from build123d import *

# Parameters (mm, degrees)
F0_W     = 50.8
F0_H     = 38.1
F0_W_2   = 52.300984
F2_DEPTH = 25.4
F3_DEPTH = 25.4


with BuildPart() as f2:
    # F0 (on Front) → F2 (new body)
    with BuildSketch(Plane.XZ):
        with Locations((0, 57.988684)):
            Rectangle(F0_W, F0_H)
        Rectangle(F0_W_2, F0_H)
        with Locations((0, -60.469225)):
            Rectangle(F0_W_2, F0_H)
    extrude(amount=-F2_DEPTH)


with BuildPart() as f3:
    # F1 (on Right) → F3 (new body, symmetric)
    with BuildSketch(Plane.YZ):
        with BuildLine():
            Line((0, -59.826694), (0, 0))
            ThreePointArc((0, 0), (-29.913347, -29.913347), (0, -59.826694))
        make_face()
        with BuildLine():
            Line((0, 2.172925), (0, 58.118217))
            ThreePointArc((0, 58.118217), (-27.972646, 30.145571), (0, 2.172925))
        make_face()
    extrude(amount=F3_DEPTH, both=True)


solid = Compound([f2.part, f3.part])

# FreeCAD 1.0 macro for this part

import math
import FreeCAD as App
import Part
import Sketcher

V = App.Vector
Q = App.Units.Quantity

doc = App.newDocument("Part")
body = doc.addObject("PartDesign::Body", "Body")
body.AllowCompound = True

# Sketch on XZ plane
sketch1 = doc.addObject("Sketcher::SketchObject", "Sketch")
body.addObject(sketch1)
sketch1.AttachmentSupport = (doc.XZ_Plane, [""])
sketch1.MapMode = "FlatFace"
sketch1.addGeometry([
    Part.LineSegment(V(-25, 77, 0), V(-25, 39, 0)),  # 0
    Part.LineSegment(V(-25, 39, 0), V(25, 39, 0)),  # 1
    Part.LineSegment(V(25, 39, 0), V(25, 77, 0)),  # 2
    Part.LineSegment(V(25, 77, 0), V(-25, 77, 0)),  # 3
    Part.LineSegment(V(-26, 19, 0), V(-26, -19, 0)),  # 4
    Part.LineSegment(V(-26, -19, 0), V(26, -19, 0)),  # 5
    Part.LineSegment(V(26, -19, 0), V(26, 19, 0)),  # 6
    Part.LineSegment(V(26, 19, 0), V(-26, 19, 0)),  # 7
    Part.LineSegment(V(-26, -41, 0), V(-26, -80, 0)),  # 8
    Part.LineSegment(V(-26, -80, 0), V(26, -80, 0)),  # 9
    Part.LineSegment(V(26, -80, 0), V(26, -41, 0)),  # 10
    Part.LineSegment(V(26, -41, 0), V(-26, -41, 0)),  # 11
], False)
sketch1.addConstraint([
    Sketcher.Constraint("Coincident", 0, 2, 1, 1),
    Sketcher.Constraint("Coincident", 1, 2, 2, 1),
    Sketcher.Constraint("Coincident", 2, 2, 3, 1),
    Sketcher.Constraint("Coincident", 3, 2, 0, 1),
    Sketcher.Constraint("Coincident", 4, 2, 5, 1),
    Sketcher.Constraint("Coincident", 5, 2, 6, 1),
    Sketcher.Constraint("Coincident", 6, 2, 7, 1),
    Sketcher.Constraint("Coincident", 7, 2, 4, 1),
    Sketcher.Constraint("Coincident", 8, 2, 9, 1),
    Sketcher.Constraint("Coincident", 9, 2, 10, 1),
    Sketcher.Constraint("Coincident", 10, 2, 11, 1),
    Sketcher.Constraint("Coincident", 11, 2, 8, 1),
    Sketcher.Constraint("Vertical", 0),
    Sketcher.Constraint("Horizontal", 1),
    Sketcher.Constraint("Vertical", 2),
    Sketcher.Constraint("Horizontal", 3),
    Sketcher.Constraint("Vertical", 4),
    Sketcher.Constraint("Horizontal", 5),
    Sketcher.Constraint("Vertical", 6),
    Sketcher.Constraint("Horizontal", 7),
    Sketcher.Constraint("Vertical", 8),
    Sketcher.Constraint("Horizontal", 9),
    Sketcher.Constraint("Vertical", 10),
    Sketcher.Constraint("Horizontal", 11),
    Sketcher.Constraint("Symmetric", 4, 2, 6, 2, -1, 1),
    Sketcher.Constraint("Vertical", 7, 2, 8, 2),
    Sketcher.Constraint("Vertical", 6, 2, 9, 2),
    Sketcher.Constraint("Equal", 2, 4),
    Sketcher.Constraint("Equal", 6, 8),
    Sketcher.Constraint("DistanceX", 1, 1, 1, 2, Q("2 in")),
    Sketcher.Constraint("DistanceY", 0, 2, 0, 1, Q("1.5 in")),
    Sketcher.Constraint("DistanceX", 0, 2, -1, 1, Q("1 in")),
    Sketcher.Constraint("DistanceX", 5, 1, 5, 2, 52.300984),
    Sketcher.Constraint("DistanceY", 8, 2, 0, 2, 118.457909),
    Sketcher.Constraint("DistanceY", -1, 1, 0, 2, 38.938684),
])
pad1 = doc.addObject("PartDesign::Pad", "Pad")
body.addObject(pad1)
pad1.Profile = sketch1
pad1.Length = Q("1 in")
pad1.Reversed = True
body2 = doc.addObject("PartDesign::Body", "Body001")
body2.AllowCompound = True

# Sketch on YZ plane
sketch2 = doc.addObject("Sketcher::SketchObject", "Sketch001")
body2.addObject(sketch2)
sketch2.AttachmentSupport = (doc.getObject("YZ_Plane001"), [""])
sketch2.MapMode = "FlatFace"
sketch2.addGeometry([
    Part.LineSegment(V(0, -60, 0), V(0, 0, 0)),
    Part.ArcOfCircle(Part.Circle(V(0, -30, 0), V(0, 0, 1), 30), math.radians(90), math.radians(270)),
    Part.LineSegment(V(0, 2, 0), V(0, 58, 0)),
    Part.ArcOfCircle(Part.Circle(V(0, 30, 0), V(0, 0, 1), 28), math.radians(90), math.radians(270)),
], False)
sketch2.addConstraint([
    Sketcher.Constraint("Coincident", 0, 1, 1, 2),
    Sketcher.Constraint("Coincident", 1, 1, 0, 2),
    Sketcher.Constraint("Coincident", 2, 1, 3, 2),
    Sketcher.Constraint("Coincident", 3, 1, 2, 2),
    Sketcher.Constraint("Vertical", 0),
    Sketcher.Constraint("Vertical", 2),
    Sketcher.Constraint("Coincident", 1, 1, -1, 1),
    Sketcher.Constraint("PointOnObject", 1, 3, -2),
    Sketcher.Constraint("PointOnObject", 3, 3, -2),
    Sketcher.Constraint("PointOnObject", 2, 1, -2),
    Sketcher.Constraint("Radius", 1, 29.913347),
    Sketcher.Constraint("Radius", 3, 27.972646),
    Sketcher.Constraint("DistanceY", -1, 1, 3, 3, 30.145571),
])
pad2 = doc.addObject("PartDesign::Pad", "Pad001")
body2.addObject(pad2)
pad2.Profile = sketch2
pad2.Length = Q("2 in")
pad2.Midplane = True

doc.recompute()
